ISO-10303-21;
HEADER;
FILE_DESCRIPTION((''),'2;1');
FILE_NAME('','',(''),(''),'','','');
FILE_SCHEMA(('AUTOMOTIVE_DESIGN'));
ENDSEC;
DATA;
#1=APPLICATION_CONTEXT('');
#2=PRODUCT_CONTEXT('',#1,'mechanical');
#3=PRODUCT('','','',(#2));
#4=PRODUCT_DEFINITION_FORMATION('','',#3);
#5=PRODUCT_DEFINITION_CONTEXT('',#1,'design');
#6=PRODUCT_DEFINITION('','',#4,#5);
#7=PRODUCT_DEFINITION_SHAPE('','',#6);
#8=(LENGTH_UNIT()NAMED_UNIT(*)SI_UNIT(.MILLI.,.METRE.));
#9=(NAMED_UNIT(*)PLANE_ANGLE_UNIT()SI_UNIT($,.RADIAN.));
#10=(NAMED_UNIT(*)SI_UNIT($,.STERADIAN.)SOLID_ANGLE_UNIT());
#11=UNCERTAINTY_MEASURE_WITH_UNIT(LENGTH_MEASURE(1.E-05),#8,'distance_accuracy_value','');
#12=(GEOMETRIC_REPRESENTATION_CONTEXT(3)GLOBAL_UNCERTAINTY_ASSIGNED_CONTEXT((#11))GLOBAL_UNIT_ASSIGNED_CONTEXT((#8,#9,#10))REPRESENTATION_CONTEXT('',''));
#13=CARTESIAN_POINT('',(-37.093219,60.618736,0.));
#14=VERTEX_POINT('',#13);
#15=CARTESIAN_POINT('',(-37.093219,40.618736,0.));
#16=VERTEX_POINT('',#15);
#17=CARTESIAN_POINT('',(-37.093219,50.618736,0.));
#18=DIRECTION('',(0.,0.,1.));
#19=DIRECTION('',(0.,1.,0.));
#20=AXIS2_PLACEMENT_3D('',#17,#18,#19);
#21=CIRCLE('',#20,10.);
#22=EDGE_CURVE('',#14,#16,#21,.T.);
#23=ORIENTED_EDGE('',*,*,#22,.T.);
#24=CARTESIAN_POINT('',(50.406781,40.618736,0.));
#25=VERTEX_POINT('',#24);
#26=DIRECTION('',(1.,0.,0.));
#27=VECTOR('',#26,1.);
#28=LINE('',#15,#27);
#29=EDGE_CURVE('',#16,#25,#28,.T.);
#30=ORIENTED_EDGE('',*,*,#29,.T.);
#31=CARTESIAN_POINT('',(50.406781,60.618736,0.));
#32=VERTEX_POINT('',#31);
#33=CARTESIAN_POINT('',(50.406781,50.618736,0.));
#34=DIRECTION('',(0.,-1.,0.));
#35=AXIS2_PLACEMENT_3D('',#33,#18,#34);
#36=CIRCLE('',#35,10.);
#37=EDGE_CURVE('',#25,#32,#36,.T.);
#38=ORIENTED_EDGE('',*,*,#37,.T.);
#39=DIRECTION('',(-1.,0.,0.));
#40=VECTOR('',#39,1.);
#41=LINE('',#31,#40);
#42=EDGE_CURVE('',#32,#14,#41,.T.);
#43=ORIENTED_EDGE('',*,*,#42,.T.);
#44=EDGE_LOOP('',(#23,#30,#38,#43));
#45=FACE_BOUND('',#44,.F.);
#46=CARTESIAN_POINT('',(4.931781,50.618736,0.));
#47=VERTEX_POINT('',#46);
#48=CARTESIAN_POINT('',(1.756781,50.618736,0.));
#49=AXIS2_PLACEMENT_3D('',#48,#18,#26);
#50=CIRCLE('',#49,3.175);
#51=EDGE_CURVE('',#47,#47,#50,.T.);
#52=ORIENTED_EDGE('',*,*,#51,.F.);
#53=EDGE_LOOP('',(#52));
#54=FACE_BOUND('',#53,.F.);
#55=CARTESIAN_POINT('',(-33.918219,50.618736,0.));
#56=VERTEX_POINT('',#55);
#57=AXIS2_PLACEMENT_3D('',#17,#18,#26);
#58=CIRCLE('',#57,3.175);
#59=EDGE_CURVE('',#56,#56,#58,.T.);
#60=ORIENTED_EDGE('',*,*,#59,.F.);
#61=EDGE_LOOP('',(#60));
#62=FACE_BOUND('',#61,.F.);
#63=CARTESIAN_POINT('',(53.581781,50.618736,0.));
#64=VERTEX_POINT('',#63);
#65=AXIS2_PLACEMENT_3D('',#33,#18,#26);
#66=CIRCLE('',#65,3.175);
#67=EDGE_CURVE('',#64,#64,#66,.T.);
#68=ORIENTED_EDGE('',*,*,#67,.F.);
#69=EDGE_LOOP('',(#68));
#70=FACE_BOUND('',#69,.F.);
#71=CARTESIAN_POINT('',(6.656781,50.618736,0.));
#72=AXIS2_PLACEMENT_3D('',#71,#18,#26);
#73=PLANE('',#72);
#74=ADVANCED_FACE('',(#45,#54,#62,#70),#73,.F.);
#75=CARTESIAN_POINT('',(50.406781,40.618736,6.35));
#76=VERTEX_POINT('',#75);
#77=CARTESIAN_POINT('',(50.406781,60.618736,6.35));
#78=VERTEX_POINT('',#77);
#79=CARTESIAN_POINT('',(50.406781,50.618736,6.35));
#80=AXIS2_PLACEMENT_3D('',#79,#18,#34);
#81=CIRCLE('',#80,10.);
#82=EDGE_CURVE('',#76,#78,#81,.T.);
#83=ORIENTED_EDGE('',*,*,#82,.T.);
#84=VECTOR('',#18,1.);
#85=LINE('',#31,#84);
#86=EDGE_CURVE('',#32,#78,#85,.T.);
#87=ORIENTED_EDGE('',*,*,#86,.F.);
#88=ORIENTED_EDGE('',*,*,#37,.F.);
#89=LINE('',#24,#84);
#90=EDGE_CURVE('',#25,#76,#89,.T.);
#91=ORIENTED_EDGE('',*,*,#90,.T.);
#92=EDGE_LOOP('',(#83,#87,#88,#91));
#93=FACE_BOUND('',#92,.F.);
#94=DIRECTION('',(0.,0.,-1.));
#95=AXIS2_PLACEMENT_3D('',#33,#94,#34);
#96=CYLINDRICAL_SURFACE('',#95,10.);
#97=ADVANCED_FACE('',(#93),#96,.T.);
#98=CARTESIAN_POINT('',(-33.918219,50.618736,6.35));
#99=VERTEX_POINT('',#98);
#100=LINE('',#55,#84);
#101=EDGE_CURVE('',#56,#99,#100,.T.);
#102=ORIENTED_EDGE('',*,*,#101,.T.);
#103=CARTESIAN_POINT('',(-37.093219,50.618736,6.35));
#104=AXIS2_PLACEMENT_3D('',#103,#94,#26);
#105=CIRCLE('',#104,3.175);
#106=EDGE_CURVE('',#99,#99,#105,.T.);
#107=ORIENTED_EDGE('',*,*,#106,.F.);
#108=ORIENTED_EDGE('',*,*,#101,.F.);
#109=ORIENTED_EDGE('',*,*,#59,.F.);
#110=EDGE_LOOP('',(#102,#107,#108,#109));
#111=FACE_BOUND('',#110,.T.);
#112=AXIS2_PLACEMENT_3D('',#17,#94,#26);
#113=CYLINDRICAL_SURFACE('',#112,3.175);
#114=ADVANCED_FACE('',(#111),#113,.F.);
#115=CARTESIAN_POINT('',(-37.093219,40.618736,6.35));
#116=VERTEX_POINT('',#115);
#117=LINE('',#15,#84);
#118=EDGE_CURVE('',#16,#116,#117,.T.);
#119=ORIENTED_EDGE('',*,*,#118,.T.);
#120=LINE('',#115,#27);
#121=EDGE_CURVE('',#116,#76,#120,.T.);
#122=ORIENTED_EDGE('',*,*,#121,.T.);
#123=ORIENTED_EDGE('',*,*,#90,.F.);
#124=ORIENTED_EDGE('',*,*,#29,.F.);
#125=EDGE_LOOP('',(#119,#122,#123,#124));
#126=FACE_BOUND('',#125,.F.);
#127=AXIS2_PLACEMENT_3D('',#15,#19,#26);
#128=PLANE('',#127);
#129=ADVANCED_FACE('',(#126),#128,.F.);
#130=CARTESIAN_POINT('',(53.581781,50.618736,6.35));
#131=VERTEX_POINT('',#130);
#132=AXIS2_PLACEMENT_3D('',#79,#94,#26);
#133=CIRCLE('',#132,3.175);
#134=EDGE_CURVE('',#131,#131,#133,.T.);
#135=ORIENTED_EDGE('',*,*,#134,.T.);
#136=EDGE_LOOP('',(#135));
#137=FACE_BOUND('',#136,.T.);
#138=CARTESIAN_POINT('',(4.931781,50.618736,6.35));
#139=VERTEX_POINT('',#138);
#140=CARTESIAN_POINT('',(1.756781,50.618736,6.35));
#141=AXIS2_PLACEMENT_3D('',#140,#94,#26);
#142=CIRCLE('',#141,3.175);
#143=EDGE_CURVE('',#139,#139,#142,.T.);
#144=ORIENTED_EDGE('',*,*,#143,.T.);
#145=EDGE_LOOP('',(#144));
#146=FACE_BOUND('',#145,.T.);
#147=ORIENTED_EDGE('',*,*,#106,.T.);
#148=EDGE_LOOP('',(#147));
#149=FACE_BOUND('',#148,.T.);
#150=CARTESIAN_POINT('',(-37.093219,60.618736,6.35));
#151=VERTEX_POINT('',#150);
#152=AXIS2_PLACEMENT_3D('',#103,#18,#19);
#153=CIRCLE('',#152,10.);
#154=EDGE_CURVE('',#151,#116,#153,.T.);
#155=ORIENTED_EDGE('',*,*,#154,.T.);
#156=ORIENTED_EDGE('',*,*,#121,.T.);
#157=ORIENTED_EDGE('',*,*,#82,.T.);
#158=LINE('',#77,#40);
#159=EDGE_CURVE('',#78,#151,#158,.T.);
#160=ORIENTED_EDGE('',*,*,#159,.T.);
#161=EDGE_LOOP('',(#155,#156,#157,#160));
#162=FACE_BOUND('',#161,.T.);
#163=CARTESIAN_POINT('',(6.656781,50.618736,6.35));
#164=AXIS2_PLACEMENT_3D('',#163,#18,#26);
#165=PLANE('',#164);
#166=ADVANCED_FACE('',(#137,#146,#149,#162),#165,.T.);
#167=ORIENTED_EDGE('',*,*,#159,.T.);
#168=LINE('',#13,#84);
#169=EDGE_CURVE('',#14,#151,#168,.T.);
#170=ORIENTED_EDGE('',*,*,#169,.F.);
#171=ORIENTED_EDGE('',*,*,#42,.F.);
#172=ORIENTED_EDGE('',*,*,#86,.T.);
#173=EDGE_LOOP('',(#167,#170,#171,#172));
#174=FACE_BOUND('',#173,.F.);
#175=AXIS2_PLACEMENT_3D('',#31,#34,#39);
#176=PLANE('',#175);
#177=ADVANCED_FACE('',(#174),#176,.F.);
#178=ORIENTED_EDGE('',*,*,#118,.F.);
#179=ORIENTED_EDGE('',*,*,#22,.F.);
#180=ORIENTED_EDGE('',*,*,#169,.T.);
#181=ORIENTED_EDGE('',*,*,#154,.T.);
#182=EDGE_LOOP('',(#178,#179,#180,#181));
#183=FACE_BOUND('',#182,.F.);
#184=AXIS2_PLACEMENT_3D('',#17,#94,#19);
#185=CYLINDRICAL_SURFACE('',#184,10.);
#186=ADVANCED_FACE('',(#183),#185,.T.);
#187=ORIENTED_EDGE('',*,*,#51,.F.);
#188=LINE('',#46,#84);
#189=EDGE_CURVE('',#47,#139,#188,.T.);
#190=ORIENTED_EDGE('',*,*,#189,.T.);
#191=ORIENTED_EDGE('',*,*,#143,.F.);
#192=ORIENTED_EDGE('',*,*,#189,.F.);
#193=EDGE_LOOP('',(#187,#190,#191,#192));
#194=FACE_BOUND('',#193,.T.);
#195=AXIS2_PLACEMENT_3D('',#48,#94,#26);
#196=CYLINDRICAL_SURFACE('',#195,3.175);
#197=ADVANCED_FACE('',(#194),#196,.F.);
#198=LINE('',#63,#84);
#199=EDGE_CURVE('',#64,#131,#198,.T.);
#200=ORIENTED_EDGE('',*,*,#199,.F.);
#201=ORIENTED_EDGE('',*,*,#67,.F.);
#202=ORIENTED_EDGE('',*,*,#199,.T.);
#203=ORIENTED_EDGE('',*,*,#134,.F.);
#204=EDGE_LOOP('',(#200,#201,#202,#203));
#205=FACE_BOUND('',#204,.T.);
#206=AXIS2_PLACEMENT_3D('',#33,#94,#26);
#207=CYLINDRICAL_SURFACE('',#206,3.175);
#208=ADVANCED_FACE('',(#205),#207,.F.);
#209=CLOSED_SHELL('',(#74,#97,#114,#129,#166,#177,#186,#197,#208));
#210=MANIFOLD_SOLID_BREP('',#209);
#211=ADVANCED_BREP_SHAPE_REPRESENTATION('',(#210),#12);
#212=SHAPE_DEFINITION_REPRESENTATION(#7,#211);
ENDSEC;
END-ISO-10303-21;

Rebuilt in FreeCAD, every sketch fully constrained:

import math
import FreeCAD as App
import Part
import Sketcher

doc = App.newDocument("Part")
body = doc.addObject("PartDesign::Body", "Body")

sketch1 = body.newObject("Sketcher::SketchObject", "Sketch")
sketch1.AttachmentSupport = (doc.getObject("XY_Plane"), [""])
sketch1.MapMode = "FlatFace"
sketch1.addGeometry([
    Part.ArcOfCircle(Part.Circle(App.Vector(-37, 51, 0), App.Vector(0, 0, 1), 10), math.radians(90), math.radians(270)),
    Part.LineSegment(App.Vector(-37, 41, 0), App.Vector(50, 41, 0)),
    Part.ArcOfCircle(Part.Circle(App.Vector(50, 51, 0), App.Vector(0, 0, 1), 10), math.radians(-90), math.radians(90)),
    Part.LineSegment(App.Vector(50, 61, 0), App.Vector(-37, 61, 0)),
], False)
sketch1.addConstraint([
    Sketcher.Constraint("Tangent", 0, 2, 1, 1),
    Sketcher.Constraint("Tangent", 1, 2, 2, 1),
    Sketcher.Constraint("Tangent", 2, 2, 3, 1),
    Sketcher.Constraint("Tangent", 3, 2, 0, 1),
    Sketcher.Constraint("Horizontal", 1),
    Sketcher.Constraint("Horizontal", 3),
    Sketcher.Constraint("Radius", 0, 10.0),
    Sketcher.Constraint("DistanceX", 1, 1, 1, 2, 87.5),
    Sketcher.Constraint("DistanceX", 0, 3, -1, 1, 37.093219),
    Sketcher.Constraint("DistanceY", -1, 1, 0, 3, 50.618736),
])
pad1 = body.newObject("PartDesign::Pad", "Pad")
pad1.Profile = sketch1
pad1.Length = 6.35

sketch2 = body.newObject("Sketcher::SketchObject", "Sketch001")
sketch2.AttachmentSupport = (doc.getObject("XY_Plane"), [""])
sketch2.MapMode = "FlatFace"
sketch2.addGeometry([
    Part.Circle(App.Vector(-37.1, 50.6, 0), App.Vector(0, 0, 1), 3.2),
    Part.Circle(App.Vector(50.4, 50.6, 0), App.Vector(0, 0, 1), 3.2),
    Part.Circle(App.Vector(1.8, 50.6, 0), App.Vector(0, 0, 1), 3.2),
], False)
sketch2.addConstraint([
    Sketcher.Constraint("Equal", 0, 1),
    Sketcher.Constraint("Equal", 1, 2),
    Sketcher.Constraint("Horizontal", 0, 3, 1, 3),
    Sketcher.Constraint("Horizontal", 1, 3, 2, 3),
    Sketcher.Constraint("Diameter", 0, 6.35),
    Sketcher.Constraint("DistanceX", 0, 3, 1, 3, 87.5),
    Sketcher.Constraint("DistanceX", 0, 3, 2, 3, 38.85),
    Sketcher.Constraint("DistanceX", 0, 3, -1, 1, 37.093219),
    Sketcher.Constraint("DistanceY", -1, 1, 0, 3, 50.618736),
])
pocket1 = body.newObject("PartDesign::Pocket", "Pocket")
pocket1.Profile = sketch2
pocket1.Type = "ThroughAll"
pocket1.Reversed = True

doc.recompute()
